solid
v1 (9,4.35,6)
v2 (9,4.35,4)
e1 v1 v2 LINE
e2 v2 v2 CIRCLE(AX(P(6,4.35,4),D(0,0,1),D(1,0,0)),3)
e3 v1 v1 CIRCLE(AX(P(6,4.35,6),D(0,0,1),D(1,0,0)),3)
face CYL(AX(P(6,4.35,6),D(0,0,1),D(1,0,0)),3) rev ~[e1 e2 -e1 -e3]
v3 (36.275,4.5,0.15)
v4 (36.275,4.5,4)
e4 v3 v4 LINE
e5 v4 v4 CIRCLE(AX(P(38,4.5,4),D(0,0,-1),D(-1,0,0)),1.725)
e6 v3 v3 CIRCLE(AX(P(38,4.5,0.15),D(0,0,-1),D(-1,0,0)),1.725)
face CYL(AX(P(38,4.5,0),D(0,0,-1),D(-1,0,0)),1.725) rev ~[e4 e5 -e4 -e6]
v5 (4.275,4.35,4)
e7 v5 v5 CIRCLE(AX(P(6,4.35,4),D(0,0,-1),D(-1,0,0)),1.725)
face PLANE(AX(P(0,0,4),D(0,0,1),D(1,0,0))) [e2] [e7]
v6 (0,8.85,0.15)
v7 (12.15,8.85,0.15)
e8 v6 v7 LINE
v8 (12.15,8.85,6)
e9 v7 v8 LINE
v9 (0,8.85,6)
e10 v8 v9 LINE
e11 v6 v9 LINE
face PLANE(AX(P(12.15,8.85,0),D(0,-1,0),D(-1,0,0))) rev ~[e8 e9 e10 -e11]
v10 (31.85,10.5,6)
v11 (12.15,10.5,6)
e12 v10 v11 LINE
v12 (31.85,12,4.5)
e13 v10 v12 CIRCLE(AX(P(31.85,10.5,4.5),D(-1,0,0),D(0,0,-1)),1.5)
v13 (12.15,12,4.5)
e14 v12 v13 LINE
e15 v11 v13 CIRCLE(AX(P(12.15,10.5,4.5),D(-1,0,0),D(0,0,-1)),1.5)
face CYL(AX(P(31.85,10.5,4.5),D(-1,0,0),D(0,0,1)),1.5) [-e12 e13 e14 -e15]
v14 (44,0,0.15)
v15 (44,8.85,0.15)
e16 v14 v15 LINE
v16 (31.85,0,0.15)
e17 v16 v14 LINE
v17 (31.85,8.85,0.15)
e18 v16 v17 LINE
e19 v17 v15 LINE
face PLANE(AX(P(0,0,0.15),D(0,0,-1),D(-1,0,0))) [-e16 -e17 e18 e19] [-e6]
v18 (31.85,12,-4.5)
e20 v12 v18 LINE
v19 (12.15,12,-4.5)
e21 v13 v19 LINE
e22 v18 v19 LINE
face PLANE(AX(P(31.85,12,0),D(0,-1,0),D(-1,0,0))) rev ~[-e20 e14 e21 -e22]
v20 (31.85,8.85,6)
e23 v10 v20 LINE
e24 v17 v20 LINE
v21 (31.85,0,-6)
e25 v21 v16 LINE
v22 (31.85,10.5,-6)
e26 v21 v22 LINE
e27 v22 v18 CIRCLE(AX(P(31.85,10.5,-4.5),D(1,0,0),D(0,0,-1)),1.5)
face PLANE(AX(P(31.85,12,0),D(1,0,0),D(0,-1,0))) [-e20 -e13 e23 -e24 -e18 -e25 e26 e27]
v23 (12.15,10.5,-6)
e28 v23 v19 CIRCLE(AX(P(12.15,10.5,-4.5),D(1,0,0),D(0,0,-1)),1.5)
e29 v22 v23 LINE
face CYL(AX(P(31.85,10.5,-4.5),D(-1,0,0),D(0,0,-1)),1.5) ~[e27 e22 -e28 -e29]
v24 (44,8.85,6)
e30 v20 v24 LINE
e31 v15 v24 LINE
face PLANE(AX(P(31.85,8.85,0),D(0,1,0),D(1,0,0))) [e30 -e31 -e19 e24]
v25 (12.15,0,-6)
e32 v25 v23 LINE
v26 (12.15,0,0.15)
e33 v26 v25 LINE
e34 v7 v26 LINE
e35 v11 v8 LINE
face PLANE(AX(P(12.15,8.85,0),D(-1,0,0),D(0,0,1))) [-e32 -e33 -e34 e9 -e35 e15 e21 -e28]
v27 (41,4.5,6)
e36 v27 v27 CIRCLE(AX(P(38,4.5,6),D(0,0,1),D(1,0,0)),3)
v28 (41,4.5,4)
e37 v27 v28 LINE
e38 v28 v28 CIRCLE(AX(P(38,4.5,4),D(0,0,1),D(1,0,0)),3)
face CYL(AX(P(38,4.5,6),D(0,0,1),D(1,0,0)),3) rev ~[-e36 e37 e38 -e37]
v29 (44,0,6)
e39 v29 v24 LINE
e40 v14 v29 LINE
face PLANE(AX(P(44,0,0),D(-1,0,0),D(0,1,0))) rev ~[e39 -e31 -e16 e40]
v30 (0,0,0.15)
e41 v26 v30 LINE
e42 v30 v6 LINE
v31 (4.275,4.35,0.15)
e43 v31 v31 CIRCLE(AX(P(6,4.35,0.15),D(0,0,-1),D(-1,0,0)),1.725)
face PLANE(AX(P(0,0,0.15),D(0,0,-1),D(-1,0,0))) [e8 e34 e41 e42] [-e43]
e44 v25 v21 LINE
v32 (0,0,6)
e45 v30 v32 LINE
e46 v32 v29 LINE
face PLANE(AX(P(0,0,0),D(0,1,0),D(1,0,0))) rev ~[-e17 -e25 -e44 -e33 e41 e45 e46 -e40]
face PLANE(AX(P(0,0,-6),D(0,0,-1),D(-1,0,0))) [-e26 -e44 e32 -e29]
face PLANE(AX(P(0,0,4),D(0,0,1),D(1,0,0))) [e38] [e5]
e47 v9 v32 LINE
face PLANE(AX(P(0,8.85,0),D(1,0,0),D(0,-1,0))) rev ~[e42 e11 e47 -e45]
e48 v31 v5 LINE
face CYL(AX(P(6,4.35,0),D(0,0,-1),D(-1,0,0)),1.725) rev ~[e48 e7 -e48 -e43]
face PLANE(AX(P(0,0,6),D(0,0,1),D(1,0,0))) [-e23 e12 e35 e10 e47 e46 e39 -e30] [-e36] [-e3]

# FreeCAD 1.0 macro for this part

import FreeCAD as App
import Part
import Sketcher

V = App.Vector
Q = App.Units.Quantity


def edges_at(feature, points):
    """Names of the edges that pass closest to the given points."""
    edges = feature.Shape.Edges
    near = lambda p: min(range(len(edges)), key=lambda i: edges[i].distToShape(Part.Vertex(*p))[0])
    return sorted({f"Edge{near(p) + 1}" for p in points})


def add_polygon(sketch, points):
    """Adds a closed chain of lines whose ends are joined by coincident constraints."""
    first, n = sketch.GeometryCount, len(points)
    for a, b in zip(points, points[1:] + points[:1]):
        sketch.addGeometry(Part.LineSegment(App.Vector(*a, 0), App.Vector(*b, 0)), False)
    for i in range(n):
        sketch.addConstraint(Sketcher.Constraint("Coincident", first + i, 2, first + (i + 1) % n, 1))

doc = App.newDocument("Part")
body = doc.addObject("PartDesign::Body", "Body")

# Sketch on XY plane
sketch1 = body.newObject("Sketcher::SketchObject", "Sketch")
sketch1.AttachmentSupport = (doc.getObject("XY_Plane"), [""])
sketch1.MapMode = "FlatFace"
add_polygon(sketch1, [(0, 8.8), (0, 0), (44, 0), (44, 8.8), (31.9, 8.8), (31.9, 12), (12.2, 12), (12.2, 8.8)])  # lines 0-7
sketch1.addConstraint(Sketcher.Constraint("Vertical", 0))
sketch1.addConstraint(Sketcher.Constraint("Horizontal", 1))
sketch1.addConstraint(Sketcher.Constraint("Vertical", 2))
sketch1.addConstraint(Sketcher.Constraint("Horizontal", 3))
sketch1.addConstraint(Sketcher.Constraint("Vertical", 4))
sketch1.addConstraint(Sketcher.Constraint("Horizontal", 5))
sketch1.addConstraint(Sketcher.Constraint("Vertical", 6))
sketch1.addConstraint(Sketcher.Constraint("Horizontal", 7))
sketch1.addConstraint(Sketcher.Constraint("Coincident", 0, 2, -1, 1))
sketch1.addConstraint(Sketcher.Constraint("Horizontal", 3, 2, 6, 2))
sketch1.addConstraint(Sketcher.Constraint("Equal", 3, 7))
sketch1.addConstraint(Sketcher.Constraint("DistanceX", 1, 1, 1, 2, Q("44 mm")))
sketch1.addConstraint(Sketcher.Constraint("DistanceY", -1, 1, 4, 2, Q("12 mm")))
sketch1.addConstraint(Sketcher.Constraint("DistanceX", 3, 2, 3, 1, Q("12.15 mm")))
sketch1.addConstraint(Sketcher.Constraint("DistanceY", 0, 2, 0, 1, Q("8.85 mm")))
pad1 = body.newObject("PartDesign::Pad", "Pad")
pad1.Profile = sketch1
pad1.Length = 6

# Sketch on XY plane
sketch2 = body.newObject("Sketcher::SketchObject", "Sketch001")
sketch2.AttachmentSupport = (doc.getObject("XY_Plane"), [""])
sketch2.MapMode = "FlatFace"
add_polygon(sketch2, [(12, 12), (32, 12), (32, 0), (12, 0)])  # lines 0-3
sketch2.addConstraint(Sketcher.Constraint("Horizontal", 0))
sketch2.addConstraint(Sketcher.Constraint("Vertical", 1))
sketch2.addConstraint(Sketcher.Constraint("Horizontal", 2))
sketch2.addConstraint(Sketcher.Constraint("Vertical", 3))
sketch2.addConstraint(Sketcher.Constraint("PointOnObject", 1, 2, -1))
sketch2.addConstraint(Sketcher.Constraint("DistanceY", 1, 2, 1, 1, Q("12 mm")))
sketch2.addConstraint(Sketcher.Constraint("DistanceX", -1, 1, 2, 2, Q("12 mm")))
sketch2.addConstraint(Sketcher.Constraint("DistanceX", 0, 1, 0, 2, Q("19.85 mm")))
pad2 = body.newObject("PartDesign::Pad", "Pad001")
pad2.Profile = sketch2
pad2.Length = 6
pad2.Reversed = True

# Sketch on XY plane
sketch3 = body.newObject("Sketcher::SketchObject", "Sketch002")
sketch3.AttachmentSupport = (doc.getObject("XY_Plane"), [""])
sketch3.MapMode = "FlatFace"
sketch3.addGeometry(Part.Circle(V(6, 4.3, 0), V(0, 0, 1), 1.7), False)
sketch3.addGeometry(Part.Circle(V(38, 4.5, 0), V(0, 0, 1), 1.7), False)
sketch3.addConstraint(Sketcher.Constraint("Equal", 0, 1))
sketch3.addConstraint(Sketcher.Constraint("Diameter", 0, Q("3.45 mm")))
sketch3.addConstraint(Sketcher.Constraint("DistanceX", -1, 1, 0, 3, Q("6 mm")))
sketch3.addConstraint(Sketcher.Constraint("DistanceY", -1, 1, 1, 3, Q("4.5 mm")))
sketch3.addConstraint(Sketcher.Constraint("DistanceX", -1, 1, 1, 3, Q("38 mm")))
sketch3.addConstraint(Sketcher.Constraint("DistanceY", -1, 1, 0, 3, Q("4.35 mm")))
pocket1 = body.newObject("PartDesign::Pocket", "Pocket")
pocket1.Profile = sketch3
pocket1.Length = 4
pocket1.Reversed = True

# Sketch on XY plane
sketch4 = body.newObject("Sketcher::SketchObject", "Sketch003")
sketch4.AttachmentSupport = (doc.getObject("XY_Plane"), [""])
sketch4.MapMode = "FlatFace"
sketch4.AttachmentOffset = App.Placement(V(0, 0, 6), App.Rotation())
sketch4.addGeometry(Part.Circle(V(6, 4.3, 0), V(0, 0, 1), 3), False)
sketch4.addGeometry(Part.Circle(V(38, 4.5, 0), V(0, 0, 1), 3), False)
sketch4.addConstraint(Sketcher.Constraint("Equal", 0, 1))
sketch4.addConstraint(Sketcher.Constraint("Diameter", 0, Q("6 mm")))
sketch4.addConstraint(Sketcher.Constraint("DistanceX", -1, 1, 0, 3, Q("6 mm")))
sketch4.addConstraint(Sketcher.Constraint("DistanceY", -1, 1, 1, 3, Q("4.5 mm")))
sketch4.addConstraint(Sketcher.Constraint("DistanceX", -1, 1, 1, 3, Q("38 mm")))
sketch4.addConstraint(Sketcher.Constraint("DistanceY", -1, 1, 0, 3, Q("4.35 mm")))
pocket2 = body.newObject("PartDesign::Pocket", "Pocket001")
pocket2.Profile = sketch4
pocket2.Length = 2

# Sketch on XY plane
sketch5 = body.newObject("Sketcher::SketchObject", "Sketch004")
sketch5.AttachmentSupport = (doc.getObject("XY_Plane"), [""])
sketch5.MapMode = "FlatFace"
add_polygon(sketch5, [(44, 0), (32, 0), (32, 9), (44, 9)])  # lines 0-3
add_polygon(sketch5, [(12, 0), (0, 0), (0, 9), (12, 9)])  # lines 4-7
sketch5.addConstraint(Sketcher.Constraint("Horizontal", 0))
sketch5.addConstraint(Sketcher.Constraint("Vertical", 1))
sketch5.addConstraint(Sketcher.Constraint("Horizontal", 2))
sketch5.addConstraint(Sketcher.Constraint("Vertical", 3))
sketch5.addConstraint(Sketcher.Constraint("Horizontal", 4))
sketch5.addConstraint(Sketcher.Constraint("Vertical", 5))
sketch5.addConstraint(Sketcher.Constraint("Horizontal", 6))
sketch5.addConstraint(Sketcher.Constraint("Vertical", 7))
sketch5.addConstraint(Sketcher.Constraint("Coincident", 4, 2, -1, 1))
sketch5.addConstraint(Sketcher.Constraint("PointOnObject", 0, 2, -1))
sketch5.addConstraint(Sketcher.Constraint("Horizontal", 2, 2, 5, 2))
sketch5.addConstraint(Sketcher.Constraint("DistanceX", 0, 2, 0, 1, Q("12.15 mm")))
sketch5.addConstraint(Sketcher.Constraint("DistanceX", 4, 2, 4, 1, Q("12 mm")))
sketch5.addConstraint(Sketcher.Constraint("DistanceX", -1, 1, 2, 2, Q("44 mm")))
sketch5.addConstraint(Sketcher.Constraint("DistanceY", 1, 1, 1, 2, Q("8.85 mm")))
pocket3 = body.newObject("PartDesign::Pocket", "Pocket002")
pocket3.Profile = sketch5
pocket3.Length = 0.15
pocket3.Reversed = True

# Sketch on YZ plane
sketch6 = body.newObject("Sketcher::SketchObject", "Sketch005")
sketch6.AttachmentSupport = (doc.getObject("YZ_Plane"), [""])
sketch6.MapMode = "FlatFace"
sketch6.AttachmentOffset = App.Placement(V(0, 0, 12), App.Rotation())
add_polygon(sketch6, [(8.85, 0), (12, 0), (12, -6), (0, -6), (0, 0.15), (8.85, 0.15)])  # lines 0-5
sketch6.addConstraint(Sketcher.Constraint("Horizontal", 0))
sketch6.addConstraint(Sketcher.Constraint("Vertical", 1))
sketch6.addConstraint(Sketcher.Constraint("Horizontal", 2))
sketch6.addConstraint(Sketcher.Constraint("Vertical", 3))
sketch6.addConstraint(Sketcher.Constraint("Horizontal", 4))
sketch6.addConstraint(Sketcher.Constraint("Vertical", 5))
sketch6.addConstraint(Sketcher.Constraint("PointOnObject", 0, 2, -1))
sketch6.addConstraint(Sketcher.Constraint("PointOnObject", 2, 2, -2))
sketch6.addConstraint(Sketcher.Constraint("DistanceX", 2, 2, 2, 1, Q("12 mm")))
sketch6.addConstraint(Sketcher.Constraint("DistanceY", 1, 2, 1, 1, Q("6 mm")))
sketch6.addConstraint(Sketcher.Constraint("DistanceX", 0, 1, 0, 2, Q("3.15 mm")))
sketch6.addConstraint(Sketcher.Constraint("DistanceY", 3, 1, 3, 2, Q("6.15 mm")))
pocket4 = body.newObject("PartDesign::Pocket", "Pocket003")
pocket4.Profile = sketch6
pocket4.Length = 0.15
pocket4.Reversed = True
doc.recompute()

fillet = body.newObject("PartDesign::Fillet", "Fillet")
fillet.Base = (pocket4, edges_at(pocket4, [(22, 12, 6), (22, 12, -6)]))
fillet.Radius = 1.5

doc.recompute()
